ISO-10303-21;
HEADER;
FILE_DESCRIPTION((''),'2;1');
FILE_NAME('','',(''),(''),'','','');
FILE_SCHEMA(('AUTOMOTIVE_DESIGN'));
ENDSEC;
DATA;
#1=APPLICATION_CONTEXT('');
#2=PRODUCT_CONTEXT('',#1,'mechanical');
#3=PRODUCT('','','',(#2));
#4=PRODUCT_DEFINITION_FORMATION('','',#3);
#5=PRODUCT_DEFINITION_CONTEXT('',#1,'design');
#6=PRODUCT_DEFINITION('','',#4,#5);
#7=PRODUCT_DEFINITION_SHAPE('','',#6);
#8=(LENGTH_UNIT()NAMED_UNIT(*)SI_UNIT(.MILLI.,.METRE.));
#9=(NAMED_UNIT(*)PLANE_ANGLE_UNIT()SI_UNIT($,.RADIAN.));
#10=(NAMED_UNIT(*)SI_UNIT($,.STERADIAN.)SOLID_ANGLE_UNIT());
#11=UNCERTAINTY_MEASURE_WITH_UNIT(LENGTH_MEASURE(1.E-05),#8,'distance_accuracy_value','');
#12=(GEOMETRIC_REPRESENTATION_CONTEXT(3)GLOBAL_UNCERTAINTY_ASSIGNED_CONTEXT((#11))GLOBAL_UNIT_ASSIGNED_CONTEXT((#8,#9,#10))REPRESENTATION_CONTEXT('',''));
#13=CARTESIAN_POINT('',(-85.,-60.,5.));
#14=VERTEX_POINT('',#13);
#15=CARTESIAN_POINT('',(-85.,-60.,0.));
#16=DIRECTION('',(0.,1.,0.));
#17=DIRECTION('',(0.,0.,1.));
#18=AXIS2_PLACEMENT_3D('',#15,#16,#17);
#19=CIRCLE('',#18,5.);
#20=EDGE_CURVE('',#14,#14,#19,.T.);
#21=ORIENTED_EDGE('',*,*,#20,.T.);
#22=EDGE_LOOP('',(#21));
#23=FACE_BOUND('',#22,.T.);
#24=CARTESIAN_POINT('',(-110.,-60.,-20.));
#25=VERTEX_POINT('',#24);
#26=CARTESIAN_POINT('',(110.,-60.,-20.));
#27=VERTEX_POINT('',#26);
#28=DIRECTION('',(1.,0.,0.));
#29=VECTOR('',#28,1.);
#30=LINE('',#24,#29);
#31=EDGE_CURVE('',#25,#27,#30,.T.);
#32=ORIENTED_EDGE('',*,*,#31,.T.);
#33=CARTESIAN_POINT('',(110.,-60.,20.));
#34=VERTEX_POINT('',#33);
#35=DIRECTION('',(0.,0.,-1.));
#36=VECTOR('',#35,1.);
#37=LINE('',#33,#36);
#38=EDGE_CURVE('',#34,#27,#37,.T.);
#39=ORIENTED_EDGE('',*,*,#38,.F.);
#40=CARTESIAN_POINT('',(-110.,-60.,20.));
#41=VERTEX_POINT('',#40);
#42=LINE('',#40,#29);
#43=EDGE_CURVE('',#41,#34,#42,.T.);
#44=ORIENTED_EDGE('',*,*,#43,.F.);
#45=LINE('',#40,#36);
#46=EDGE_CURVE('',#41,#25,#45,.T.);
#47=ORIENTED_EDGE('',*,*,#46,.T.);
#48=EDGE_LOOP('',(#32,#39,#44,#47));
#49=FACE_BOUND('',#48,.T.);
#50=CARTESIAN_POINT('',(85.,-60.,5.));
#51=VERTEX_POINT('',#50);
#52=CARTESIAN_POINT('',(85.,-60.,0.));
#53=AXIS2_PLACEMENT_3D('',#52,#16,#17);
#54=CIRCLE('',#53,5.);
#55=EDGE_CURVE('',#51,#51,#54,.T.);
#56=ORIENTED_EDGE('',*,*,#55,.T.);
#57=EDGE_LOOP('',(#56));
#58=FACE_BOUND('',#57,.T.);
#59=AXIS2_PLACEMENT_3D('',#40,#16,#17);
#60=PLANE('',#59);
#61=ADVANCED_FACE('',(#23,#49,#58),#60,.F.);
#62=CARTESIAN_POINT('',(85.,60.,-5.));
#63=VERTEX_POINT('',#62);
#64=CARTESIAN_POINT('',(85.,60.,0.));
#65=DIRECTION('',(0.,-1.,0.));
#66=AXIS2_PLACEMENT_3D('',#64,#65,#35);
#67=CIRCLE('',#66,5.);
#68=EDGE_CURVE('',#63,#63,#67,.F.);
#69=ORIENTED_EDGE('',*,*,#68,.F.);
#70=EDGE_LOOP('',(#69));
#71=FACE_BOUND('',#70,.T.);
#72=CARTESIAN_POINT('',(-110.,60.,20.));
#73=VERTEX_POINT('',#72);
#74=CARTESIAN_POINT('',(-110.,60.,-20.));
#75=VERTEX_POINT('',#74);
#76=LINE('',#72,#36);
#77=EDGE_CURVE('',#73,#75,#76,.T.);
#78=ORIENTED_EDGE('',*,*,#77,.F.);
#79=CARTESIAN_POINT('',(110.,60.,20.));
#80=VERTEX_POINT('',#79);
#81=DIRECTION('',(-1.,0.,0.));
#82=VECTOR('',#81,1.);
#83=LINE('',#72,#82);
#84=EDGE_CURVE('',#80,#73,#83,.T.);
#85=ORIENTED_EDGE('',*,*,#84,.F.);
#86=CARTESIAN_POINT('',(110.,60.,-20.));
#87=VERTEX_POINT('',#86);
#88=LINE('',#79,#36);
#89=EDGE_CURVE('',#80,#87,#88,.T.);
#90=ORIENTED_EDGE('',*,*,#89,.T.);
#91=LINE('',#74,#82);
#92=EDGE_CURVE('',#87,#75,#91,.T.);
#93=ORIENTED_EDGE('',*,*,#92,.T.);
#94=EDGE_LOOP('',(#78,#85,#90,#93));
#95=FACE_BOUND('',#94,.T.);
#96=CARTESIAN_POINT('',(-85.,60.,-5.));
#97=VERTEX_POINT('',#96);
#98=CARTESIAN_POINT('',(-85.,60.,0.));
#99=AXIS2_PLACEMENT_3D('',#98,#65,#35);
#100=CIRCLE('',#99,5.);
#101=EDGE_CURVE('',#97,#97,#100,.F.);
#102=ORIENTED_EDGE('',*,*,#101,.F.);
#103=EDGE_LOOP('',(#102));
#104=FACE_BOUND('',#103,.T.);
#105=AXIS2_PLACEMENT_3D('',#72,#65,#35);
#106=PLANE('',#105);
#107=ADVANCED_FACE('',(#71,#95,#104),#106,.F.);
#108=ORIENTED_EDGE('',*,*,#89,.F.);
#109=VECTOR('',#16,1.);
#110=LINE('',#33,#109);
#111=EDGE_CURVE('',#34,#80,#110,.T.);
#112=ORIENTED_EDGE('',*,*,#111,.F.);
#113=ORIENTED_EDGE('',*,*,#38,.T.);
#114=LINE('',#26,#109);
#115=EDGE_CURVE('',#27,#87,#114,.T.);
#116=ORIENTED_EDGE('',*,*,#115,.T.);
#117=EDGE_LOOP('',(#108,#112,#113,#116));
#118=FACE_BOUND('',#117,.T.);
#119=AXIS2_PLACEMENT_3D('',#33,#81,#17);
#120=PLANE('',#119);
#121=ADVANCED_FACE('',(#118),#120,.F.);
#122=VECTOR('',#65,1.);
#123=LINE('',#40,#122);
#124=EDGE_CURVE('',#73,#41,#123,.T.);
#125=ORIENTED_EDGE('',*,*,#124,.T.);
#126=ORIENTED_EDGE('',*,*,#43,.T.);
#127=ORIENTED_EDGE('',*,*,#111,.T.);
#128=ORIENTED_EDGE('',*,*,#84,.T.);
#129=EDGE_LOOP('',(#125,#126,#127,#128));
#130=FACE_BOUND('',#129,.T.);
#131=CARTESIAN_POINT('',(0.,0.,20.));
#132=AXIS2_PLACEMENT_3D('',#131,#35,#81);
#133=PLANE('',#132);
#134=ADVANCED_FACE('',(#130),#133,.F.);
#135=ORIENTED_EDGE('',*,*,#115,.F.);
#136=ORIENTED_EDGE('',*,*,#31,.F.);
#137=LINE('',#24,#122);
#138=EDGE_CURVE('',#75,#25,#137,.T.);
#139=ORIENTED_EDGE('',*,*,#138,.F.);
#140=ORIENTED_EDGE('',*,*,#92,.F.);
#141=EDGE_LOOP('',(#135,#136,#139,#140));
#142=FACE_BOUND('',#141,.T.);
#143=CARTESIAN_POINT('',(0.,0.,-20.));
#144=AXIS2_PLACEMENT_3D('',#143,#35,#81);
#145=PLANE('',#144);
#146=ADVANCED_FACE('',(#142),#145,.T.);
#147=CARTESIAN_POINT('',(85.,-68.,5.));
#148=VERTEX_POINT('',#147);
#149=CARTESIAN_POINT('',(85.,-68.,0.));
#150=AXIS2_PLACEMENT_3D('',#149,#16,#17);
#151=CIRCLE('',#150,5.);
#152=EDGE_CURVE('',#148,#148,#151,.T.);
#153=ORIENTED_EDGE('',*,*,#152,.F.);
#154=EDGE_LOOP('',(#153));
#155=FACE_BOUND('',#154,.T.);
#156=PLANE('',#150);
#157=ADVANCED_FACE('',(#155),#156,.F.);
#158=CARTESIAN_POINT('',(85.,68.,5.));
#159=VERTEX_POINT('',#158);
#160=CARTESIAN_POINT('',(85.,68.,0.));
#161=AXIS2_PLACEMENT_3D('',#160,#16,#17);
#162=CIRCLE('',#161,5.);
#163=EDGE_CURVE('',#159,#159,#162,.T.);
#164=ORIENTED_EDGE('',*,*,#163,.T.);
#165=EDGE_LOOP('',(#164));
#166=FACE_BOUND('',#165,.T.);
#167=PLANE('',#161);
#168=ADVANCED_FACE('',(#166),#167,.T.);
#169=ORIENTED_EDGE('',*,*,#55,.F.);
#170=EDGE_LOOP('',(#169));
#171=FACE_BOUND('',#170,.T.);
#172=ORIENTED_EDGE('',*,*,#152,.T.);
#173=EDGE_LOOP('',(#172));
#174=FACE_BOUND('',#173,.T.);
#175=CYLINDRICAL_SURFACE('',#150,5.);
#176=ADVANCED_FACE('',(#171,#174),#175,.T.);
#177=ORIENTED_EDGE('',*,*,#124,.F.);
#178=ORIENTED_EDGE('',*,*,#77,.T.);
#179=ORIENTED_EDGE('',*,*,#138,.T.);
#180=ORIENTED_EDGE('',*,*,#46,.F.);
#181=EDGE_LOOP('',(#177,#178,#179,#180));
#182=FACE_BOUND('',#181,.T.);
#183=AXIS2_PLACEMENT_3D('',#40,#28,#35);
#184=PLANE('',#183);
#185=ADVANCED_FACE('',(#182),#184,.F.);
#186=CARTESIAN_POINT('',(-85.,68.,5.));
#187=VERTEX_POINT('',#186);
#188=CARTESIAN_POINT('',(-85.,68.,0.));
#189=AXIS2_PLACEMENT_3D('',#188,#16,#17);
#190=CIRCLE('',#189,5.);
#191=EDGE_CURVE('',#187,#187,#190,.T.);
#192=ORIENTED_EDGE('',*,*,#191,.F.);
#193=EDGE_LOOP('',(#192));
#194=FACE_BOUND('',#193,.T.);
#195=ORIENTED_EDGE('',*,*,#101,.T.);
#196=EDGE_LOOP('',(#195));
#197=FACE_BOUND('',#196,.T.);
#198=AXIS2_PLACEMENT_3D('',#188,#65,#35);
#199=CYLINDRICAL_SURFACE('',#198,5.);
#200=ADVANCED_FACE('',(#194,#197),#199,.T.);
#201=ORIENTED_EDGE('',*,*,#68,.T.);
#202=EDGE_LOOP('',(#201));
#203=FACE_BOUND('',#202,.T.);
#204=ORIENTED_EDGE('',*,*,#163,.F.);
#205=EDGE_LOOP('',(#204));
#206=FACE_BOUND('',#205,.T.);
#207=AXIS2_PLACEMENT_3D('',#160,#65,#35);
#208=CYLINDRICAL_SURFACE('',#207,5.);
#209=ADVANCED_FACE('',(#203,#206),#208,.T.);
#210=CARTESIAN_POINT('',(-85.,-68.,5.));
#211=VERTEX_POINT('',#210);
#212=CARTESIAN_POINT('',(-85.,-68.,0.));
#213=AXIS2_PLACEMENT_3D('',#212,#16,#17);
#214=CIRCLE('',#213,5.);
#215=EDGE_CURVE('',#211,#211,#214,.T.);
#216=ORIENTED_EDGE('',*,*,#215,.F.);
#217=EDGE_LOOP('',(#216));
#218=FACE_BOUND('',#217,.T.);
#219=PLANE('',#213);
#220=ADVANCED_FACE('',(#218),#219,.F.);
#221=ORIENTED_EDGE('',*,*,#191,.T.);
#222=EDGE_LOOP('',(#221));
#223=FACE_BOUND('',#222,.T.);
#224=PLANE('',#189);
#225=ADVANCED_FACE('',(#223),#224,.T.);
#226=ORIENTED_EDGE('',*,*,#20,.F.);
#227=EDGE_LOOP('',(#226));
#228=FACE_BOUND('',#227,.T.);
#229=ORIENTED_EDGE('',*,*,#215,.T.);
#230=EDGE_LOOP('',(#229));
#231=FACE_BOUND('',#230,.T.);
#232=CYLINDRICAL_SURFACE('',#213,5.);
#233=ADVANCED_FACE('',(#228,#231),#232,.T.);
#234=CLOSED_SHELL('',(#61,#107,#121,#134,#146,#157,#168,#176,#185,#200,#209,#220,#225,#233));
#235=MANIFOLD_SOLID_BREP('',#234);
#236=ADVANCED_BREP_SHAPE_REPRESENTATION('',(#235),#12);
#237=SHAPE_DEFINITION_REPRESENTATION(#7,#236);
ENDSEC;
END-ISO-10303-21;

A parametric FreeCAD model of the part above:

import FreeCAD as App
import Part
import Sketcher

doc = App.newDocument("Part")
params = doc.addObject("Spreadsheet::Sheet", "Params")
for row, (alias, value) in enumerate([
    ("sketch1_width", "220 mm"),
    ("sketch1_height", "120 mm"),
    ("pad1_length", "40 mm"),
    ("sketch2_diameter", "10 mm"),
    ("pad2_length", "8 mm"),
    ("sketch3_diameter", "10 mm"),
    ("pad3_length", "8 mm"),
], start=1):
    params.set(f"A{row}", alias)
    params.set(f"B{row}", "=" + value)
    params.setAlias(f"B{row}", alias)

body = doc.addObject("PartDesign::Body", "Body")

# Sketch on XY plane
sketch1 = body.newObject("Sketcher::SketchObject", "Sketch")
sketch1.AttachmentSupport = (doc.getObject("XY_Plane"), [""])
sketch1.MapMode = "FlatFace"
sketch1.addGeometry(Part.LineSegment(App.Vector(-110, 60, 0), App.Vector(-110, -60, 0)), False)
sketch1.addGeometry(Part.LineSegment(App.Vector(-110, -60, 0), App.Vector(110, -60, 0)), False)
sketch1.addGeometry(Part.LineSegment(App.Vector(110, -60, 0), App.Vector(110, 60, 0)), False)
sketch1.addGeometry(Part.LineSegment(App.Vector(110, 60, 0), App.Vector(-110, 60, 0)), False)
sketch1.addConstraint(Sketcher.Constraint("Coincident", 0, 2, 1, 1))
sketch1.addConstraint(Sketcher.Constraint("Coincident", 1, 2, 2, 1))
sketch1.addConstraint(Sketcher.Constraint("Coincident", 2, 2, 3, 1))
sketch1.addConstraint(Sketcher.Constraint("Coincident", 3, 2, 0, 1))
sketch1.addConstraint(Sketcher.Constraint("Vertical", 0))
sketch1.addConstraint(Sketcher.Constraint("Horizontal", 1))
sketch1.addConstraint(Sketcher.Constraint("Vertical", 2))
sketch1.addConstraint(Sketcher.Constraint("Horizontal", 3))
sketch1.addConstraint(Sketcher.Constraint("Symmetric", 0, 2, 2, 2, -1, 1))
sketch1.addConstraint(Sketcher.Constraint("DistanceX", 1, 1, 1, 2, 220.0))
sketch1.addConstraint(Sketcher.Constraint("DistanceY", 0, 2, 0, 1, 120.0))
sketch1.setExpression("Constraints[9]", "Params.sketch1_width")
sketch1.setExpression("Constraints[10]", "Params.sketch1_height")
pad1 = body.newObject("PartDesign::Pad", "Pad")
pad1.Profile = sketch1
pad1.setExpression("Length", "Params.pad1_length")
pad1.Midplane = True

# Sketch on XZ plane
sketch2 = body.newObject("Sketcher::SketchObject", "Sketch001")
sketch2.AttachmentSupport = (doc.getObject("XZ_Plane"), [""])
sketch2.MapMode = "FlatFace"
sketch2.AttachmentOffset = App.Placement(App.Vector(0, 0, -60), App.Rotation())
sketch2.addGeometry(Part.Circle(App.Vector(85, 0, 0), App.Vector(0, 0, 1), 5), False)
sketch2.addGeometry(Part.Circle(App.Vector(-85, 0, 0), App.Vector(0, 0, 1), 5), False)
sketch2.addConstraint(Sketcher.Constraint("Equal", 0, 1))
sketch2.addConstraint(Sketcher.Constraint("Symmetric", 0, 3, 1, 3, -1, 1))
sketch2.addConstraint(Sketcher.Constraint("PointOnObject", 0, 3, -1))
sketch2.addConstraint(Sketcher.Constraint("Diameter", 0, 10.0))
sketch2.addConstraint(Sketcher.Constraint("DistanceX", -1, 1, 0, 3, 85.0))
sketch2.setExpression("Constraints[3]", "Params.sketch2_diameter")
pad2 = body.newObject("PartDesign::Pad", "Pad001")
pad2.Profile = sketch2
pad2.setExpression("Length", "Params.pad2_length")
pad2.Reversed = True

# Sketch on XZ plane
sketch3 = body.newObject("Sketcher::SketchObject", "Sketch002")
sketch3.AttachmentSupport = (doc.getObject("XZ_Plane"), [""])
sketch3.MapMode = "FlatFace"
sketch3.AttachmentOffset = App.Placement(App.Vector(0, 0, 68), App.Rotation())
sketch3.addGeometry(Part.Circle(App.Vector(85, 0, 0), App.Vector(0, 0, 1), 5), False)
sketch3.addGeometry(Part.Circle(App.Vector(-85, 0, 0), App.Vector(0, 0, 1), 5), False)
sketch3.addConstraint(Sketcher.Constraint("Equal", 0, 1))
sketch3.addConstraint(Sketcher.Constraint("Symmetric", 0, 3, 1, 3, -1, 1))
sketch3.addConstraint(Sketcher.Constraint("PointOnObject", 0, 3, -1))
sketch3.addConstraint(Sketcher.Constraint("Diameter", 0, 10.0))
sketch3.addConstraint(Sketcher.Constraint("DistanceX", -1, 1, 0, 3, 85.0))
sketch3.setExpression("Constraints[3]", "Params.sketch3_diameter")
pad3 = body.newObject("PartDesign::Pad", "Pad002")
pad3.Profile = sketch3
pad3.setExpression("Length", "Params.pad3_length")
pad3.Reversed = True

doc.recompute()
